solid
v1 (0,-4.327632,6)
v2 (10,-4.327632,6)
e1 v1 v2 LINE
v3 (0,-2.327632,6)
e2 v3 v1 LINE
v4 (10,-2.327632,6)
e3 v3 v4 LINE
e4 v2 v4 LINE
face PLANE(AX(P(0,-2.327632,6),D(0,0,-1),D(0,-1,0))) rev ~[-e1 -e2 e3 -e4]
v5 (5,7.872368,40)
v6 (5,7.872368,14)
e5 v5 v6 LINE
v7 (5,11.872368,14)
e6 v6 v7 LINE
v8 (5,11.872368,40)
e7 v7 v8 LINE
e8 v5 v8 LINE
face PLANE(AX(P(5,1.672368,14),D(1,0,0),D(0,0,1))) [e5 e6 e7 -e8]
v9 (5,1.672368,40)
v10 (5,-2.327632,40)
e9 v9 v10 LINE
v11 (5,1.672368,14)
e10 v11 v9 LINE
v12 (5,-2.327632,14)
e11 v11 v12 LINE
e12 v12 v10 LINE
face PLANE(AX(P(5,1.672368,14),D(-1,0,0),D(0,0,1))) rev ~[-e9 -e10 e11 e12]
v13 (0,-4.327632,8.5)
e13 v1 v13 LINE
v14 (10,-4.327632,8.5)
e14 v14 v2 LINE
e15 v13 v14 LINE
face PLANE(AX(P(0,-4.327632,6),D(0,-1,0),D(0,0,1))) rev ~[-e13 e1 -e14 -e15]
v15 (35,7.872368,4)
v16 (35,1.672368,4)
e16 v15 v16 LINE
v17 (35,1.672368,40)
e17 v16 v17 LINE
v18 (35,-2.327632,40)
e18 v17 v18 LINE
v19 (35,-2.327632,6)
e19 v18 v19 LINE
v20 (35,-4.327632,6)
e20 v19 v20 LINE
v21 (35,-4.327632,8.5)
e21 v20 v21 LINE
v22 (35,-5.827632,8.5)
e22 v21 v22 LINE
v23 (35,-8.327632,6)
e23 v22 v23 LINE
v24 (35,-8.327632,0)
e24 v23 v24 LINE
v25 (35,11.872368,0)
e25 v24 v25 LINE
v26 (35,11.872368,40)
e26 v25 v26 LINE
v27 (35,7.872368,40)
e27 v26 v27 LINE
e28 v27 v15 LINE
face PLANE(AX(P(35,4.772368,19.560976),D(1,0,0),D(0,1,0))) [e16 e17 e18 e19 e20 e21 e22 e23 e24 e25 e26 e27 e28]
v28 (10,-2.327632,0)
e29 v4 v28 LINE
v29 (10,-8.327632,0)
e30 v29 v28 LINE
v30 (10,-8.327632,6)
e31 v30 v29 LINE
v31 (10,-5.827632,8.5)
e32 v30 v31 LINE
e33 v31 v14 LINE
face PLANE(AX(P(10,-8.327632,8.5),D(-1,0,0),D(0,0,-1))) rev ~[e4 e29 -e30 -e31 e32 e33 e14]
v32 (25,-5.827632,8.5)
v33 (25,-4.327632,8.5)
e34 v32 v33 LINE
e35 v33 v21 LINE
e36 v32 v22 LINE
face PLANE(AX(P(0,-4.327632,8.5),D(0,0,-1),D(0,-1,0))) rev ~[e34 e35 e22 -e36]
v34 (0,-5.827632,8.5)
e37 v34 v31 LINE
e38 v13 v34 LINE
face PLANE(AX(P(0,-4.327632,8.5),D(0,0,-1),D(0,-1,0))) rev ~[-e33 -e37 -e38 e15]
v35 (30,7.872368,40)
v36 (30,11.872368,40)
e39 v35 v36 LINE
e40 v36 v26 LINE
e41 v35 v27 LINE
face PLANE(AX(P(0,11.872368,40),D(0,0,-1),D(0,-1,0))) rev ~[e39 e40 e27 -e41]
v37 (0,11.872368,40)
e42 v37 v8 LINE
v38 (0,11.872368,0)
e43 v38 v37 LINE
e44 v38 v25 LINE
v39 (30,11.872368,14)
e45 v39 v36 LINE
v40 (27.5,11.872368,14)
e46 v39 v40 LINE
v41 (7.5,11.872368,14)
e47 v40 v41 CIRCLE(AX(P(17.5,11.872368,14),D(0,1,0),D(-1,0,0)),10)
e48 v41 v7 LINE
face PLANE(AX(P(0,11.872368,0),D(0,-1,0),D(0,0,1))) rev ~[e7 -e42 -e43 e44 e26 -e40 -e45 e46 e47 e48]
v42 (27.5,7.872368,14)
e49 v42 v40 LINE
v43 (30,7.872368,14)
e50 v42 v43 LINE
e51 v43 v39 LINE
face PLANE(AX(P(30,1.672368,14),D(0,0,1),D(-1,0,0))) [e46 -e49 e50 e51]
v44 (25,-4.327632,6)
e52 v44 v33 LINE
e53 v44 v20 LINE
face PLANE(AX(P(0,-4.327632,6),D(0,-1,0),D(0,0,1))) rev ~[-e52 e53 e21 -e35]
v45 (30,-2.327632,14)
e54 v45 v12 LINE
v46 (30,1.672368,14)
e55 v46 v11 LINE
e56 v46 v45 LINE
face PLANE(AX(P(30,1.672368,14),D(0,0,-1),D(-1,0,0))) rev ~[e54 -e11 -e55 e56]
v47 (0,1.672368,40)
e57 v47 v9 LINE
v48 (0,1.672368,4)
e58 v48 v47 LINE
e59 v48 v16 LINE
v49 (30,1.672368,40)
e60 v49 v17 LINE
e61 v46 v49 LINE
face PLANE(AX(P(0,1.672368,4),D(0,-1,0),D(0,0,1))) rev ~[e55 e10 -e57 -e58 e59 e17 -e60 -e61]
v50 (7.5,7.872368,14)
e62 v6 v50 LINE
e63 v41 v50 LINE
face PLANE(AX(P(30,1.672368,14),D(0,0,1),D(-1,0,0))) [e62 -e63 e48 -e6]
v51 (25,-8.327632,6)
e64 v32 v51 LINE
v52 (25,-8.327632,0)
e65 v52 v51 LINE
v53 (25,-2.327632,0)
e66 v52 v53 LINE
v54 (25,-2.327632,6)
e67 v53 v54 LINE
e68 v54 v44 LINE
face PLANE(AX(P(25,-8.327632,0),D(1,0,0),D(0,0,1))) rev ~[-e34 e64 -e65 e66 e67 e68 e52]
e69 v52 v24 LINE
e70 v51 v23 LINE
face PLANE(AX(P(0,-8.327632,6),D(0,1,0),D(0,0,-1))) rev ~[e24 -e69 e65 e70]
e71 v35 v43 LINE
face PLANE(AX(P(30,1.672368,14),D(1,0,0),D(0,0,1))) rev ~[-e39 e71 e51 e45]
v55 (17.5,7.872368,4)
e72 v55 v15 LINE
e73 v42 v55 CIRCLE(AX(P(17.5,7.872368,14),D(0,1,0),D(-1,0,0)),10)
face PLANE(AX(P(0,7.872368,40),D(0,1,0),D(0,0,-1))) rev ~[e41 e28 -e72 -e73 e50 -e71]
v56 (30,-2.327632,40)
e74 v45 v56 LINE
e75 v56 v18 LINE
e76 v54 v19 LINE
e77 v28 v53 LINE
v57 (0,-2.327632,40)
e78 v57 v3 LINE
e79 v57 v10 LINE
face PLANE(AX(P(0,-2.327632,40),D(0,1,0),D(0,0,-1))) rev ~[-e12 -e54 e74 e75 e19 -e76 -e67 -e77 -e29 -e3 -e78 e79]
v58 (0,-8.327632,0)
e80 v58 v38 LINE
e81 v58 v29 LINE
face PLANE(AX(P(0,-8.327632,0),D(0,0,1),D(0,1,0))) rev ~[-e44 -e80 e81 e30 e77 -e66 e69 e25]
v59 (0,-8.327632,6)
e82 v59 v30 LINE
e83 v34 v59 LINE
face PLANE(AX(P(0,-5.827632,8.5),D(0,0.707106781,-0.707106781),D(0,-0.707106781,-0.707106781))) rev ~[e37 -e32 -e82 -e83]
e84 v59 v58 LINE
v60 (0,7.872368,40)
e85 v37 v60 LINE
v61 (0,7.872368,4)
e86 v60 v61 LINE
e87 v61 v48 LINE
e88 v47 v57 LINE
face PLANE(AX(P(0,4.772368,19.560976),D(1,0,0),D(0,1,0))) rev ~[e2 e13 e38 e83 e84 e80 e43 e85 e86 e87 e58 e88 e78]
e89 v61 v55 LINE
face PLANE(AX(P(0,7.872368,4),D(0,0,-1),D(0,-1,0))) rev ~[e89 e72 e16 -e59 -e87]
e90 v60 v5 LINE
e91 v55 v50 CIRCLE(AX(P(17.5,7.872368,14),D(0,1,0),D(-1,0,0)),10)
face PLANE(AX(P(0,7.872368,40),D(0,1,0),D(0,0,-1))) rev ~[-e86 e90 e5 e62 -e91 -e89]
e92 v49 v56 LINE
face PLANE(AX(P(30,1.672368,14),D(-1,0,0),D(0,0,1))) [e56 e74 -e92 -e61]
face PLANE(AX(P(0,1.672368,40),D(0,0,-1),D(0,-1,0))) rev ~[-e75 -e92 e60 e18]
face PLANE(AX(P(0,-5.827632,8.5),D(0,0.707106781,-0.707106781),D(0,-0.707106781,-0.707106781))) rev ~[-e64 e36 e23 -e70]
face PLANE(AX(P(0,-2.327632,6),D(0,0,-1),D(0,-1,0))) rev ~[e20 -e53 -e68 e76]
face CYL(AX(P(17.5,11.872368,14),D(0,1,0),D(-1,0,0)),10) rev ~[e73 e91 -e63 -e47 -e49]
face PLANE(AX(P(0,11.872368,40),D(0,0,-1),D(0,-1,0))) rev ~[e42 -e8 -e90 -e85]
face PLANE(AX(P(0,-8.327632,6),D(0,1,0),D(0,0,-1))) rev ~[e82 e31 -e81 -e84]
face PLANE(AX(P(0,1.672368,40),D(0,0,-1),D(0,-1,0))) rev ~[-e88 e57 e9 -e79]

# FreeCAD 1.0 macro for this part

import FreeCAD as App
import Part
import Sketcher

V = App.Vector
Q = App.Units.Quantity


def add_polygon(sketch, points):
    """Adds a closed chain of lines whose ends are joined by coincident constraints."""
    first, n = sketch.GeometryCount, len(points)
    for a, b in zip(points, points[1:] + points[:1]):
        sketch.addGeometry(Part.LineSegment(App.Vector(*a, 0), App.Vector(*b, 0)), False)
    for i in range(n):
        sketch.addConstraint(Sketcher.Constraint("Coincident", first + i, 2, first + (i + 1) % n, 1))

doc = App.newDocument("Part")
body = doc.addObject("PartDesign::Body", "Body")

sketch1 = doc.addObject("Sketcher::SketchObject", "Sketch")
body.addObject(sketch1)
sketch1.AttachmentSupport = (doc.YZ_Plane, [""])
sketch1.MapMode = "FlatFace"
add_polygon(sketch1, [(1.7, 40), (-2.3, 40), (-2.3, 6), (-4.3, 6), (-4.3, 8.5), (-5.8, 8.5), (-8.3, 6), (-8.3, 0), (11.9, 0), (11.9, 40), (7.9, 40), (7.9, 4), (1.7, 4)])
sketch1.addConstraint(Sketcher.Constraint("Horizontal", 0))
sketch1.addConstraint(Sketcher.Constraint("Vertical", 1))
sketch1.addConstraint(Sketcher.Constraint("Horizontal", 2))
sketch1.addConstraint(Sketcher.Constraint("Vertical", 3))
sketch1.addConstraint(Sketcher.Constraint("Horizontal", 4))
sketch1.addConstraint(Sketcher.Constraint("Vertical", 6))
sketch1.addConstraint(Sketcher.Constraint("Horizontal", 7))
sketch1.addConstraint(Sketcher.Constraint("Vertical", 8))
sketch1.addConstraint(Sketcher.Constraint("Horizontal", 9))
sketch1.addConstraint(Sketcher.Constraint("Vertical", 10))
sketch1.addConstraint(Sketcher.Constraint("Horizontal", 11))
sketch1.addConstraint(Sketcher.Constraint("Vertical", 12))
sketch1.addConstraint(Sketcher.Constraint("PointOnObject", 6, 2, -1))
sketch1.addConstraint(Sketcher.Constraint("Horizontal", 2, 2, 5, 2))
sketch1.addConstraint(Sketcher.Constraint("Horizontal", 0, 2, 8, 2))
sketch1.addConstraint(Sketcher.Constraint("Equal", 0, 9))
sketch1.addConstraint(Sketcher.Constraint("DistanceX", 0, 2, 0, 1, 4.0))
sketch1.addConstraint(Sketcher.Constraint("DistanceX", 2, 2, 2, 1, 2.0))
sketch1.addConstraint(Sketcher.Constraint("DistanceY", 1, 2, 1, 1, 34.0))
sketch1.addConstraint(Sketcher.Constraint("DistanceY", 6, 2, 6, 1, 6.0))
sketch1.addConstraint(Sketcher.Constraint("DistanceY", 10, 2, 10, 1, 36.0))
sketch1.addConstraint(Sketcher.Constraint("Angle", 5, Q("-135 deg")))
sketch1.addConstraint(Sketcher.Constraint("DistanceX", 4, 2, 4, 1, 1.5))
sketch1.addConstraint(Sketcher.Constraint("DistanceX", 7, 1, 7, 2, 20.2))
sketch1.addConstraint(Sketcher.Constraint("DistanceX", 11, 2, 11, 1, 6.2))
sketch1.addConstraint(Sketcher.Constraint("DistanceX", 0, 2, -1, 1, 2.327632))
pad1 = doc.addObject("PartDesign::Pad", "Pad")
body.addObject(pad1)
pad1.Profile = sketch1
pad1.Length = 35

sketch2 = doc.addObject("Sketcher::SketchObject", "Sketch001")
body.addObject(sketch2)
sketch2.AttachmentSupport = (doc.XZ_Plane, [""])
sketch2.MapMode = "FlatFace"
sketch2.AttachmentOffset = App.Placement(V(0, 0, -1.672368), App.Rotation())
add_polygon(sketch2, [(30, 40), (30, 14), (5, 14), (5, 40)])
sketch2.addConstraint(Sketcher.Constraint("Vertical", 0))
sketch2.addConstraint(Sketcher.Constraint("Horizontal", 1))
sketch2.addConstraint(Sketcher.Constraint("Vertical", 2))
sketch2.addConstraint(Sketcher.Constraint("Horizontal", 3))
sketch2.addConstraint(Sketcher.Constraint("DistanceX", 1, 2, 1, 1, 25.0))
sketch2.addConstraint(Sketcher.Constraint("DistanceY", 0, 2, 0, 1, 26.0))
sketch2.addConstraint(Sketcher.Constraint("DistanceX", -1, 1, 0, 2, 30.0))
sketch2.addConstraint(Sketcher.Constraint("DistanceY", -1, 1, 0, 2, 14.0))
pocket1 = doc.addObject("PartDesign::Pocket", "Pocket")
body.addObject(pocket1)
pocket1.Profile = sketch2
pocket1.Type = "ThroughAll"
pocket1.Midplane = True

sketch3 = doc.addObject("Sketcher::SketchObject", "Sketch002")
body.addObject(sketch3)
sketch3.AttachmentSupport = (doc.XZ_Plane, [""])
sketch3.MapMode = "FlatFace"
sketch3.AttachmentOffset = App.Placement(V(0, 0, 8.327632), App.Rotation())
add_polygon(sketch3, [(10, 0), (25, 0), (25, 8), (10, 8)])
sketch3.addConstraint(Sketcher.Constraint("Horizontal", 0))
sketch3.addConstraint(Sketcher.Constraint("Vertical", 1))
sketch3.addConstraint(Sketcher.Constraint("Horizontal", 2))
sketch3.addConstraint(Sketcher.Constraint("Vertical", 3))
sketch3.addConstraint(Sketcher.Constraint("PointOnObject", 0, 2, -1))
sketch3.addConstraint(Sketcher.Constraint("DistanceX", 0, 1, 0, 2, 15.0))
sketch3.addConstraint(Sketcher.Constraint("DistanceY", 1, 1, 1, 2, 8.5))
sketch3.addConstraint(Sketcher.Constraint("DistanceX", -1, 1, 0, 2, 25.0))
pocket2 = doc.addObject("PartDesign::Pocket", "Pocket001")
body.addObject(pocket2)
pocket2.Profile = sketch3
pocket2.Length = 6

sketch4 = doc.addObject("Sketcher::SketchObject", "Sketch003")
body.addObject(sketch4)
sketch4.AttachmentSupport = (doc.XZ_Plane, [""])
sketch4.MapMode = "FlatFace"
sketch4.AttachmentOffset = App.Placement(V(0, 0, -11.872368), App.Rotation())
sketch4.addGeometry(Part.Circle(V(18, 14, 0), V(0, 0, 1), 10), False)
sketch4.addConstraint(Sketcher.Constraint("Diameter", 0, 20.0))
sketch4.addConstraint(Sketcher.Constraint("DistanceY", -1, 1, 0, 3, 14.0))
sketch4.addConstraint(Sketcher.Constraint("DistanceX", -1, 1, 0, 3, 17.5))
pocket3 = doc.addObject("PartDesign::Pocket", "Pocket002")
body.addObject(pocket3)
pocket3.Profile = sketch4
pocket3.Length = 4
pocket3.Reversed = True

doc.recompute()
